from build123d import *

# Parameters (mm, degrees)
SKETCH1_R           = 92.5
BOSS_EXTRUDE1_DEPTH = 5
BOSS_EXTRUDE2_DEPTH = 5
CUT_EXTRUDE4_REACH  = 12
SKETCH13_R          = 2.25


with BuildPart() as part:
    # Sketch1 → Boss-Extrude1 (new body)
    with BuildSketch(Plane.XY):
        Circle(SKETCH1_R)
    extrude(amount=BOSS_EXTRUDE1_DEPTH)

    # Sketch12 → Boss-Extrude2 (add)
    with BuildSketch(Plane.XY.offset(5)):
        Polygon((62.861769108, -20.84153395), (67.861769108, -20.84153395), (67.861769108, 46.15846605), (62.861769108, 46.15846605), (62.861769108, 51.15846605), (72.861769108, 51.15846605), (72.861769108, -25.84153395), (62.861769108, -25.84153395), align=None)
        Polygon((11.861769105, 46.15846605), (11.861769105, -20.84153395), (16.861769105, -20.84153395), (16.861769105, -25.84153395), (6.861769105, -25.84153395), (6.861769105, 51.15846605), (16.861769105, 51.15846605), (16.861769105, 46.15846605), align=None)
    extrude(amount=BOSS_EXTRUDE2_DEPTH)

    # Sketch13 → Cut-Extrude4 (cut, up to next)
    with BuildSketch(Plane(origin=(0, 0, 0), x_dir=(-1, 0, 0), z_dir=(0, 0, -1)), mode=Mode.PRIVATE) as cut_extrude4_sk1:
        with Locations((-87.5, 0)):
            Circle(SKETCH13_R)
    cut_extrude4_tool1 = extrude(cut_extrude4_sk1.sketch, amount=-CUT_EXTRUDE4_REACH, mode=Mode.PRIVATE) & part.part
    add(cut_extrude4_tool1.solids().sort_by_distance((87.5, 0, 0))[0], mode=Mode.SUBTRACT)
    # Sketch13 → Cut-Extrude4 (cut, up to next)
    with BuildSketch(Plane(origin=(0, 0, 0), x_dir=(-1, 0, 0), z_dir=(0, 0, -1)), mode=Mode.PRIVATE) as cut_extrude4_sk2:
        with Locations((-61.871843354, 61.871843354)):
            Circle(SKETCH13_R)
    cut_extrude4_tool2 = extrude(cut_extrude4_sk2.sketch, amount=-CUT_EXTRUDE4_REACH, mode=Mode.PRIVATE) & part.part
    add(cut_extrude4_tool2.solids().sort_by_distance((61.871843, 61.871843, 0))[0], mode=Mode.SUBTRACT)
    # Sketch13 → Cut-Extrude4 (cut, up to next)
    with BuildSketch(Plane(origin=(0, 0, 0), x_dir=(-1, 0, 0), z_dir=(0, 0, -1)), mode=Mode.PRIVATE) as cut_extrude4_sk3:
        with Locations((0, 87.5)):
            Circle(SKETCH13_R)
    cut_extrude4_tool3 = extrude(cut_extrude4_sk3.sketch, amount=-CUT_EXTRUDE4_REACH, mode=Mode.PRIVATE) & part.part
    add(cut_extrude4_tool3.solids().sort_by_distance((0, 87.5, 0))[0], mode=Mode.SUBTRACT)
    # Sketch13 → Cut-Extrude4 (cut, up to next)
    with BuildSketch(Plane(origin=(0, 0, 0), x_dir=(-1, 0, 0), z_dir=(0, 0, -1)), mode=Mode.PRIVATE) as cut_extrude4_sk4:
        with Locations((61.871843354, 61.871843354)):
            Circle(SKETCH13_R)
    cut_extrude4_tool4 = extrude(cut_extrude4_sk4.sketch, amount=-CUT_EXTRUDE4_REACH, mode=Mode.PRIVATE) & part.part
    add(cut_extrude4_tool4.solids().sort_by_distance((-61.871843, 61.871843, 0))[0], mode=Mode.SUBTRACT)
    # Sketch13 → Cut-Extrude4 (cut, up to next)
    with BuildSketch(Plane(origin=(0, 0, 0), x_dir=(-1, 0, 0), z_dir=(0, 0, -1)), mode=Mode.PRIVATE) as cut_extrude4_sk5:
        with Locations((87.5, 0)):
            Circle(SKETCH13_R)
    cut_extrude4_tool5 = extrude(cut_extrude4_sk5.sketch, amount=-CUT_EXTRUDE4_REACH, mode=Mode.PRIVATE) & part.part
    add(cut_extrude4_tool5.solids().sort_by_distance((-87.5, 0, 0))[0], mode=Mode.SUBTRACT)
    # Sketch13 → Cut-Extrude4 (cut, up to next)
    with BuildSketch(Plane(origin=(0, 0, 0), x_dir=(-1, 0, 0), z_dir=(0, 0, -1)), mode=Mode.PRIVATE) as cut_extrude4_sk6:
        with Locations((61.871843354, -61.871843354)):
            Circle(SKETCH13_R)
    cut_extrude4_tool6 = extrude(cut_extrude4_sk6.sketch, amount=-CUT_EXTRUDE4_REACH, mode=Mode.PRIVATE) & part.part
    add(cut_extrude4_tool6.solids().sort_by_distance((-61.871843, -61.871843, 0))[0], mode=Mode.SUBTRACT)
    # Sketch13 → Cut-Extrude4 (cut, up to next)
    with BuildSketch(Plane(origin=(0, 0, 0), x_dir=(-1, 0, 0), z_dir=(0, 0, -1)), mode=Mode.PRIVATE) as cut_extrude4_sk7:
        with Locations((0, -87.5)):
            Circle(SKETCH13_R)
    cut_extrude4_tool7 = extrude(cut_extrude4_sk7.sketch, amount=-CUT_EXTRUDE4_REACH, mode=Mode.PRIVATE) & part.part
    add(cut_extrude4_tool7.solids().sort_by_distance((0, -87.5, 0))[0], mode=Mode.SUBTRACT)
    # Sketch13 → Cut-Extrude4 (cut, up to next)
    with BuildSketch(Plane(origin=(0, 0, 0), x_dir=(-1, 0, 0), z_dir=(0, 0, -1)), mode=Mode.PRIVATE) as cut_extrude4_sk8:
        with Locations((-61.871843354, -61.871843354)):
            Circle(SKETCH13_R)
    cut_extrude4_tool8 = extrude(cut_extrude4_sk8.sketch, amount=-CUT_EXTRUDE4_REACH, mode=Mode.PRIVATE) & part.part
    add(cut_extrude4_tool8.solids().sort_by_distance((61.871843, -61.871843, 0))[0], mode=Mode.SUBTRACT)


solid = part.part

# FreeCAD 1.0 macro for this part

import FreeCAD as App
import Part
import Sketcher


def add_polygon(sketch, points):
    """Adds a closed chain of lines whose ends are joined by coincident constraints."""
    first, n = sketch.GeometryCount, len(points)
    for a, b in zip(points, points[1:] + points[:1]):
        sketch.addGeometry(Part.LineSegment(App.Vector(*a, 0), App.Vector(*b, 0)), False)
    for i in range(n):
        sketch.addConstraint(Sketcher.Constraint("Coincident", first + i, 2, first + (i + 1) % n, 1))

doc = App.newDocument("Part")
params = doc.addObject("Spreadsheet::Sheet", "Params")
for row, (alias, value) in enumerate([
    ("sketch1_diameter", "185 mm"),
    ("pad1_length", "5 mm"),
    ("sketch2_width", "5 mm"),
    ("sketch2_width2", "10 mm"),
    ("sketch2_height", "77 mm"),
    ("pad2_length", "5 mm"),
    ("sketch3_diameter", "4.5 mm"),
    ("sketch4_diameter", "4.5 mm"),
    ("sketch5_diameter", "4.5 mm"),
    ("sketch6_diameter", "4.5 mm"),
    ("sketch7_diameter", "4.5 mm"),
    ("sketch8_diameter", "4.5 mm"),
    ("sketch9_diameter", "4.5 mm"),
    ("sketch10_diameter", "4.5 mm"),
], start=1):
    params.set(f"A{row}", alias)
    params.set(f"B{row}", "=" + value)
    params.setAlias(f"B{row}", alias)

body = doc.addObject("PartDesign::Body", "Body")

sketch1 = doc.addObject("Sketcher::SketchObject", "Sketch")
body.addObject(sketch1)
sketch1.AttachmentSupport = (doc.XY_Plane, [""])
sketch1.MapMode = "FlatFace"
sketch1.addGeometry(Part.Circle(App.Vector(0, 0, 0), App.Vector(0, 0, 1), 92), False)
sketch1.addConstraint(Sketcher.Constraint("Coincident", 0, 3, -1, 1))
sketch1.addConstraint(Sketcher.Constraint("Diameter", 0, 185.0))
sketch1.setExpression("Constraints[1]", "Params.sketch1_diameter")
pad1 = doc.addObject("PartDesign::Pad", "Pad")
body.addObject(pad1)
pad1.Profile = sketch1
pad1.setExpression("Length", "Params.pad1_length")

sketch2 = doc.addObject("Sketcher::SketchObject", "Sketch001")
body.addObject(sketch2)
sketch2.AttachmentSupport = (doc.XY_Plane, [""])
sketch2.MapMode = "FlatFace"
sketch2.AttachmentOffset = App.Placement(App.Vector(0, 0, 5), App.Rotation())
add_polygon(sketch2, [(68, -21), (63, -21), (63, -26), (73, -26), (73, 51), (63, 51), (63, 46), (68, 46)])
add_polygon(sketch2, [(12, -21), (12, 46), (17, 46), (17, 51), (7, 51), (7, -26), (17, -26), (17, -21)])
sketch2.addConstraint(Sketcher.Constraint("Horizontal", 0))
sketch2.addConstraint(Sketcher.Constraint("Vertical", 1))
sketch2.addConstraint(Sketcher.Constraint("Horizontal", 2))
sketch2.addConstraint(Sketcher.Constraint("Vertical", 3))
sketch2.addConstraint(Sketcher.Constraint("Horizontal", 4))
sketch2.addConstraint(Sketcher.Constraint("Vertical", 5))
sketch2.addConstraint(Sketcher.Constraint("Horizontal", 6))
sketch2.addConstraint(Sketcher.Constraint("Vertical", 7))
sketch2.addConstraint(Sketcher.Constraint("Vertical", 8))
sketch2.addConstraint(Sketcher.Constraint("Horizontal", 9))
sketch2.addConstraint(Sketcher.Constraint("Vertical", 10))
sketch2.addConstraint(Sketcher.Constraint("Horizontal", 11))
sketch2.addConstraint(Sketcher.Constraint("Vertical", 12))
sketch2.addConstraint(Sketcher.Constraint("Horizontal", 13))
sketch2.addConstraint(Sketcher.Constraint("Vertical", 14))
sketch2.addConstraint(Sketcher.Constraint("Horizontal", 15))
sketch2.addConstraint(Sketcher.Constraint("Horizontal", 6, 2, 8, 2))
sketch2.addConstraint(Sketcher.Constraint("Horizontal", 4, 2, 10, 2))
sketch2.addConstraint(Sketcher.Constraint("Horizontal", 2, 2, 12, 2))
sketch2.addConstraint(Sketcher.Constraint("Horizontal", 7, 2, 14, 2))
sketch2.addConstraint(Sketcher.Constraint("Vertical", 1, 2, 4, 2))
sketch2.addConstraint(Sketcher.Constraint("Vertical", 10, 2, 13, 2))
sketch2.addConstraint(Sketcher.Constraint("Equal", 6, 9))
sketch2.addConstraint(Sketcher.Constraint("Equal", 4, 11))
sketch2.addConstraint(Sketcher.Constraint("Equal", 15, 1))
sketch2.addConstraint(Sketcher.Constraint("Equal", 1, 5))
sketch2.addConstraint(Sketcher.Constraint("DistanceX", 0, 2, 0, 1, 5.0))
sketch2.addConstraint(Sketcher.Constraint("DistanceX", 2, 1, 2, 2, 10.0))
sketch2.addConstraint(Sketcher.Constraint("DistanceY", 3, 1, 3, 2, 77.0))
sketch2.addConstraint(Sketcher.Constraint("DistanceX", 8, 2, 5, 2, 51.0))
sketch2.addConstraint(Sketcher.Constraint("DistanceX", -1, 1, 0, 2, 62.861769))
sketch2.addConstraint(Sketcher.Constraint("DistanceY", 0, 2, -1, 1, 20.841534))
sketch2.setExpression("Constraints[42]", "Params.sketch2_width")
sketch2.setExpression("Constraints[43]", "Params.sketch2_width2")
sketch2.setExpression("Constraints[44]", "Params.sketch2_height")
pad2 = doc.addObject("PartDesign::Pad", "Pad001")
body.addObject(pad2)
pad2.Profile = sketch2
pad2.setExpression("Length", "Params.pad2_length")

sketch3 = doc.addObject("Sketcher::SketchObject", "Sketch002")
body.addObject(sketch3)
sketch3.AttachmentSupport = (doc.XY_Plane, [""])
sketch3.MapMode = "FlatFace"
sketch3.addGeometry(Part.Circle(App.Vector(87.5, 0, 0), App.Vector(0, 0, 1), 2.2), False)
sketch3.addConstraint(Sketcher.Constraint("PointOnObject", 0, 3, -1))
sketch3.addConstraint(Sketcher.Constraint("Diameter", 0, 4.5))
sketch3.addConstraint(Sketcher.Constraint("DistanceX", -1, 1, 0, 3, 87.5))
sketch3.setExpression("Constraints[1]", "Params.sketch3_diameter")
pocket1 = doc.addObject("PartDesign::Pocket", "Pocket")
body.addObject(pocket1)
pocket1.Profile = sketch3
pocket1.Type = "UpToFirst"
pocket1.Reversed = True

sketch4 = doc.addObject("Sketcher::SketchObject", "Sketch003")
body.addObject(sketch4)
sketch4.AttachmentSupport = (doc.XY_Plane, [""])
sketch4.MapMode = "FlatFace"
sketch4.addGeometry(Part.Circle(App.Vector(61.9, 61.9, 0), App.Vector(0, 0, 1), 2.2), False)
sketch4.addConstraint(Sketcher.Constraint("Diameter", 0, 4.5))
sketch4.addConstraint(Sketcher.Constraint("DistanceX", -1, 1, 0, 3, 61.871843))
sketch4.addConstraint(Sketcher.Constraint("DistanceY", -1, 1, 0, 3, 61.871843))
sketch4.setExpression("Constraints[0]", "Params.sketch4_diameter")
pocket2 = doc.addObject("PartDesign::Pocket", "Pocket001")
body.addObject(pocket2)
pocket2.Profile = sketch4
pocket2.Type = "UpToFirst"
pocket2.Reversed = True

sketch5 = doc.addObject("Sketcher::SketchObject", "Sketch004")
body.addObject(sketch5)
sketch5.AttachmentSupport = (doc.XY_Plane, [""])
sketch5.MapMode = "FlatFace"
sketch5.addGeometry(Part.Circle(App.Vector(0, 87.5, 0), App.Vector(0, 0, 1), 2.2), False)
sketch5.addConstraint(Sketcher.Constraint("PointOnObject", 0, 3, -2))
sketch5.addConstraint(Sketcher.Constraint("Diameter", 0, 4.5))
sketch5.addConstraint(Sketcher.Constraint("DistanceY", -1, 1, 0, 3, 87.5))
sketch5.setExpression("Constraints[1]", "Params.sketch5_diameter")
pocket3 = doc.addObject("PartDesign::Pocket", "Pocket002")
body.addObject(pocket3)
pocket3.Profile = sketch5
pocket3.Type = "UpToFirst"
pocket3.Reversed = True

sketch6 = doc.addObject("Sketcher::SketchObject", "Sketch005")
body.addObject(sketch6)
sketch6.AttachmentSupport = (doc.XY_Plane, [""])
sketch6.MapMode = "FlatFace"
sketch6.addGeometry(Part.Circle(App.Vector(-61.9, 61.9, 0), App.Vector(0, 0, 1), 2.2), False)
sketch6.addConstraint(Sketcher.Constraint("Diameter", 0, 4.5))
sketch6.addConstraint(Sketcher.Constraint("DistanceX", 0, 3, -1, 1, 61.871843))
sketch6.addConstraint(Sketcher.Constraint("DistanceY", -1, 1, 0, 3, 61.871843))
sketch6.setExpression("Constraints[0]", "Params.sketch6_diameter")
pocket4 = doc.addObject("PartDesign::Pocket", "Pocket003")
body.addObject(pocket4)
pocket4.Profile = sketch6
pocket4.Type = "UpToFirst"
pocket4.Reversed = True

sketch7 = doc.addObject("Sketcher::SketchObject", "Sketch006")
body.addObject(sketch7)
sketch7.AttachmentSupport = (doc.XY_Plane, [""])
sketch7.MapMode = "FlatFace"
sketch7.addGeometry(Part.Circle(App.Vector(-87.5, 0, 0), App.Vector(0, 0, 1), 2.2), False)
sketch7.addConstraint(Sketcher.Constraint("PointOnObject", 0, 3, -1))
sketch7.addConstraint(Sketcher.Constraint("Diameter", 0, 4.5))
sketch7.addConstraint(Sketcher.Constraint("DistanceX", 0, 3, -1, 1, 87.5))
sketch7.setExpression("Constraints[1]", "Params.sketch7_diameter")
pocket5 = doc.addObject("PartDesign::Pocket", "Pocket004")
body.addObject(pocket5)
pocket5.Profile = sketch7
pocket5.Type = "UpToFirst"
pocket5.Reversed = True

sketch8 = doc.addObject("Sketcher::SketchObject", "Sketch007")
body.addObject(sketch8)
sketch8.AttachmentSupport = (doc.XY_Plane, [""])
sketch8.MapMode = "FlatFace"
sketch8.addGeometry(Part.Circle(App.Vector(-61.9, -61.9, 0), App.Vector(0, 0, 1), 2.2), False)
sketch8.addConstraint(Sketcher.Constraint("Diameter", 0, 4.5))
sketch8.addConstraint(Sketcher.Constraint("DistanceX", 0, 3, -1, 1, 61.871843))
sketch8.addConstraint(Sketcher.Constraint("DistanceY", 0, 3, -1, 1, 61.871843))
sketch8.setExpression("Constraints[0]", "Params.sketch8_diameter")
pocket6 = doc.addObject("PartDesign::Pocket", "Pocket005")
body.addObject(pocket6)
pocket6.Profile = sketch8
pocket6.Type = "UpToFirst"
pocket6.Reversed = True

sketch9 = doc.addObject("Sketcher::SketchObject", "Sketch008")
body.addObject(sketch9)
sketch9.AttachmentSupport = (doc.XY_Plane, [""])
sketch9.MapMode = "FlatFace"
sketch9.addGeometry(Part.Circle(App.Vector(0, -87.5, 0), App.Vector(0, 0, 1), 2.2), False)
sketch9.addConstraint(Sketcher.Constraint("PointOnObject", 0, 3, -2))
sketch9.addConstraint(Sketcher.Constraint("Diameter", 0, 4.5))
sketch9.addConstraint(Sketcher.Constraint("DistanceY", 0, 3, -1, 1, 87.5))
sketch9.setExpression("Constraints[1]", "Params.sketch9_diameter")
pocket7 = doc.addObject("PartDesign::Pocket", "Pocket006")
body.addObject(pocket7)
pocket7.Profile = sketch9
pocket7.Type = "UpToFirst"
pocket7.Reversed = True

sketch10 = doc.addObject("Sketcher::SketchObject", "Sketch009")
body.addObject(sketch10)
sketch10.AttachmentSupport = (doc.XY_Plane, [""])
sketch10.MapMode = "FlatFace"
sketch10.addGeometry(Part.Circle(App.Vector(61.9, -61.9, 0), App.Vector(0, 0, 1), 2.2), False)
sketch10.addConstraint(Sketcher.Constraint("Diameter", 0, 4.5))
sketch10.addConstraint(Sketcher.Constraint("DistanceX", -1, 1, 0, 3, 61.871843))
sketch10.addConstraint(Sketcher.Constraint("DistanceY", 0, 3, -1, 1, 61.871843))
sketch10.setExpression("Constraints[0]", "Params.sketch10_diameter")
pocket8 = doc.addObject("PartDesign::Pocket", "Pocket007")
body.addObject(pocket8)
pocket8.Profile = sketch10
pocket8.Type = "UpToFirst"
pocket8.Reversed = True

doc.recompute()
